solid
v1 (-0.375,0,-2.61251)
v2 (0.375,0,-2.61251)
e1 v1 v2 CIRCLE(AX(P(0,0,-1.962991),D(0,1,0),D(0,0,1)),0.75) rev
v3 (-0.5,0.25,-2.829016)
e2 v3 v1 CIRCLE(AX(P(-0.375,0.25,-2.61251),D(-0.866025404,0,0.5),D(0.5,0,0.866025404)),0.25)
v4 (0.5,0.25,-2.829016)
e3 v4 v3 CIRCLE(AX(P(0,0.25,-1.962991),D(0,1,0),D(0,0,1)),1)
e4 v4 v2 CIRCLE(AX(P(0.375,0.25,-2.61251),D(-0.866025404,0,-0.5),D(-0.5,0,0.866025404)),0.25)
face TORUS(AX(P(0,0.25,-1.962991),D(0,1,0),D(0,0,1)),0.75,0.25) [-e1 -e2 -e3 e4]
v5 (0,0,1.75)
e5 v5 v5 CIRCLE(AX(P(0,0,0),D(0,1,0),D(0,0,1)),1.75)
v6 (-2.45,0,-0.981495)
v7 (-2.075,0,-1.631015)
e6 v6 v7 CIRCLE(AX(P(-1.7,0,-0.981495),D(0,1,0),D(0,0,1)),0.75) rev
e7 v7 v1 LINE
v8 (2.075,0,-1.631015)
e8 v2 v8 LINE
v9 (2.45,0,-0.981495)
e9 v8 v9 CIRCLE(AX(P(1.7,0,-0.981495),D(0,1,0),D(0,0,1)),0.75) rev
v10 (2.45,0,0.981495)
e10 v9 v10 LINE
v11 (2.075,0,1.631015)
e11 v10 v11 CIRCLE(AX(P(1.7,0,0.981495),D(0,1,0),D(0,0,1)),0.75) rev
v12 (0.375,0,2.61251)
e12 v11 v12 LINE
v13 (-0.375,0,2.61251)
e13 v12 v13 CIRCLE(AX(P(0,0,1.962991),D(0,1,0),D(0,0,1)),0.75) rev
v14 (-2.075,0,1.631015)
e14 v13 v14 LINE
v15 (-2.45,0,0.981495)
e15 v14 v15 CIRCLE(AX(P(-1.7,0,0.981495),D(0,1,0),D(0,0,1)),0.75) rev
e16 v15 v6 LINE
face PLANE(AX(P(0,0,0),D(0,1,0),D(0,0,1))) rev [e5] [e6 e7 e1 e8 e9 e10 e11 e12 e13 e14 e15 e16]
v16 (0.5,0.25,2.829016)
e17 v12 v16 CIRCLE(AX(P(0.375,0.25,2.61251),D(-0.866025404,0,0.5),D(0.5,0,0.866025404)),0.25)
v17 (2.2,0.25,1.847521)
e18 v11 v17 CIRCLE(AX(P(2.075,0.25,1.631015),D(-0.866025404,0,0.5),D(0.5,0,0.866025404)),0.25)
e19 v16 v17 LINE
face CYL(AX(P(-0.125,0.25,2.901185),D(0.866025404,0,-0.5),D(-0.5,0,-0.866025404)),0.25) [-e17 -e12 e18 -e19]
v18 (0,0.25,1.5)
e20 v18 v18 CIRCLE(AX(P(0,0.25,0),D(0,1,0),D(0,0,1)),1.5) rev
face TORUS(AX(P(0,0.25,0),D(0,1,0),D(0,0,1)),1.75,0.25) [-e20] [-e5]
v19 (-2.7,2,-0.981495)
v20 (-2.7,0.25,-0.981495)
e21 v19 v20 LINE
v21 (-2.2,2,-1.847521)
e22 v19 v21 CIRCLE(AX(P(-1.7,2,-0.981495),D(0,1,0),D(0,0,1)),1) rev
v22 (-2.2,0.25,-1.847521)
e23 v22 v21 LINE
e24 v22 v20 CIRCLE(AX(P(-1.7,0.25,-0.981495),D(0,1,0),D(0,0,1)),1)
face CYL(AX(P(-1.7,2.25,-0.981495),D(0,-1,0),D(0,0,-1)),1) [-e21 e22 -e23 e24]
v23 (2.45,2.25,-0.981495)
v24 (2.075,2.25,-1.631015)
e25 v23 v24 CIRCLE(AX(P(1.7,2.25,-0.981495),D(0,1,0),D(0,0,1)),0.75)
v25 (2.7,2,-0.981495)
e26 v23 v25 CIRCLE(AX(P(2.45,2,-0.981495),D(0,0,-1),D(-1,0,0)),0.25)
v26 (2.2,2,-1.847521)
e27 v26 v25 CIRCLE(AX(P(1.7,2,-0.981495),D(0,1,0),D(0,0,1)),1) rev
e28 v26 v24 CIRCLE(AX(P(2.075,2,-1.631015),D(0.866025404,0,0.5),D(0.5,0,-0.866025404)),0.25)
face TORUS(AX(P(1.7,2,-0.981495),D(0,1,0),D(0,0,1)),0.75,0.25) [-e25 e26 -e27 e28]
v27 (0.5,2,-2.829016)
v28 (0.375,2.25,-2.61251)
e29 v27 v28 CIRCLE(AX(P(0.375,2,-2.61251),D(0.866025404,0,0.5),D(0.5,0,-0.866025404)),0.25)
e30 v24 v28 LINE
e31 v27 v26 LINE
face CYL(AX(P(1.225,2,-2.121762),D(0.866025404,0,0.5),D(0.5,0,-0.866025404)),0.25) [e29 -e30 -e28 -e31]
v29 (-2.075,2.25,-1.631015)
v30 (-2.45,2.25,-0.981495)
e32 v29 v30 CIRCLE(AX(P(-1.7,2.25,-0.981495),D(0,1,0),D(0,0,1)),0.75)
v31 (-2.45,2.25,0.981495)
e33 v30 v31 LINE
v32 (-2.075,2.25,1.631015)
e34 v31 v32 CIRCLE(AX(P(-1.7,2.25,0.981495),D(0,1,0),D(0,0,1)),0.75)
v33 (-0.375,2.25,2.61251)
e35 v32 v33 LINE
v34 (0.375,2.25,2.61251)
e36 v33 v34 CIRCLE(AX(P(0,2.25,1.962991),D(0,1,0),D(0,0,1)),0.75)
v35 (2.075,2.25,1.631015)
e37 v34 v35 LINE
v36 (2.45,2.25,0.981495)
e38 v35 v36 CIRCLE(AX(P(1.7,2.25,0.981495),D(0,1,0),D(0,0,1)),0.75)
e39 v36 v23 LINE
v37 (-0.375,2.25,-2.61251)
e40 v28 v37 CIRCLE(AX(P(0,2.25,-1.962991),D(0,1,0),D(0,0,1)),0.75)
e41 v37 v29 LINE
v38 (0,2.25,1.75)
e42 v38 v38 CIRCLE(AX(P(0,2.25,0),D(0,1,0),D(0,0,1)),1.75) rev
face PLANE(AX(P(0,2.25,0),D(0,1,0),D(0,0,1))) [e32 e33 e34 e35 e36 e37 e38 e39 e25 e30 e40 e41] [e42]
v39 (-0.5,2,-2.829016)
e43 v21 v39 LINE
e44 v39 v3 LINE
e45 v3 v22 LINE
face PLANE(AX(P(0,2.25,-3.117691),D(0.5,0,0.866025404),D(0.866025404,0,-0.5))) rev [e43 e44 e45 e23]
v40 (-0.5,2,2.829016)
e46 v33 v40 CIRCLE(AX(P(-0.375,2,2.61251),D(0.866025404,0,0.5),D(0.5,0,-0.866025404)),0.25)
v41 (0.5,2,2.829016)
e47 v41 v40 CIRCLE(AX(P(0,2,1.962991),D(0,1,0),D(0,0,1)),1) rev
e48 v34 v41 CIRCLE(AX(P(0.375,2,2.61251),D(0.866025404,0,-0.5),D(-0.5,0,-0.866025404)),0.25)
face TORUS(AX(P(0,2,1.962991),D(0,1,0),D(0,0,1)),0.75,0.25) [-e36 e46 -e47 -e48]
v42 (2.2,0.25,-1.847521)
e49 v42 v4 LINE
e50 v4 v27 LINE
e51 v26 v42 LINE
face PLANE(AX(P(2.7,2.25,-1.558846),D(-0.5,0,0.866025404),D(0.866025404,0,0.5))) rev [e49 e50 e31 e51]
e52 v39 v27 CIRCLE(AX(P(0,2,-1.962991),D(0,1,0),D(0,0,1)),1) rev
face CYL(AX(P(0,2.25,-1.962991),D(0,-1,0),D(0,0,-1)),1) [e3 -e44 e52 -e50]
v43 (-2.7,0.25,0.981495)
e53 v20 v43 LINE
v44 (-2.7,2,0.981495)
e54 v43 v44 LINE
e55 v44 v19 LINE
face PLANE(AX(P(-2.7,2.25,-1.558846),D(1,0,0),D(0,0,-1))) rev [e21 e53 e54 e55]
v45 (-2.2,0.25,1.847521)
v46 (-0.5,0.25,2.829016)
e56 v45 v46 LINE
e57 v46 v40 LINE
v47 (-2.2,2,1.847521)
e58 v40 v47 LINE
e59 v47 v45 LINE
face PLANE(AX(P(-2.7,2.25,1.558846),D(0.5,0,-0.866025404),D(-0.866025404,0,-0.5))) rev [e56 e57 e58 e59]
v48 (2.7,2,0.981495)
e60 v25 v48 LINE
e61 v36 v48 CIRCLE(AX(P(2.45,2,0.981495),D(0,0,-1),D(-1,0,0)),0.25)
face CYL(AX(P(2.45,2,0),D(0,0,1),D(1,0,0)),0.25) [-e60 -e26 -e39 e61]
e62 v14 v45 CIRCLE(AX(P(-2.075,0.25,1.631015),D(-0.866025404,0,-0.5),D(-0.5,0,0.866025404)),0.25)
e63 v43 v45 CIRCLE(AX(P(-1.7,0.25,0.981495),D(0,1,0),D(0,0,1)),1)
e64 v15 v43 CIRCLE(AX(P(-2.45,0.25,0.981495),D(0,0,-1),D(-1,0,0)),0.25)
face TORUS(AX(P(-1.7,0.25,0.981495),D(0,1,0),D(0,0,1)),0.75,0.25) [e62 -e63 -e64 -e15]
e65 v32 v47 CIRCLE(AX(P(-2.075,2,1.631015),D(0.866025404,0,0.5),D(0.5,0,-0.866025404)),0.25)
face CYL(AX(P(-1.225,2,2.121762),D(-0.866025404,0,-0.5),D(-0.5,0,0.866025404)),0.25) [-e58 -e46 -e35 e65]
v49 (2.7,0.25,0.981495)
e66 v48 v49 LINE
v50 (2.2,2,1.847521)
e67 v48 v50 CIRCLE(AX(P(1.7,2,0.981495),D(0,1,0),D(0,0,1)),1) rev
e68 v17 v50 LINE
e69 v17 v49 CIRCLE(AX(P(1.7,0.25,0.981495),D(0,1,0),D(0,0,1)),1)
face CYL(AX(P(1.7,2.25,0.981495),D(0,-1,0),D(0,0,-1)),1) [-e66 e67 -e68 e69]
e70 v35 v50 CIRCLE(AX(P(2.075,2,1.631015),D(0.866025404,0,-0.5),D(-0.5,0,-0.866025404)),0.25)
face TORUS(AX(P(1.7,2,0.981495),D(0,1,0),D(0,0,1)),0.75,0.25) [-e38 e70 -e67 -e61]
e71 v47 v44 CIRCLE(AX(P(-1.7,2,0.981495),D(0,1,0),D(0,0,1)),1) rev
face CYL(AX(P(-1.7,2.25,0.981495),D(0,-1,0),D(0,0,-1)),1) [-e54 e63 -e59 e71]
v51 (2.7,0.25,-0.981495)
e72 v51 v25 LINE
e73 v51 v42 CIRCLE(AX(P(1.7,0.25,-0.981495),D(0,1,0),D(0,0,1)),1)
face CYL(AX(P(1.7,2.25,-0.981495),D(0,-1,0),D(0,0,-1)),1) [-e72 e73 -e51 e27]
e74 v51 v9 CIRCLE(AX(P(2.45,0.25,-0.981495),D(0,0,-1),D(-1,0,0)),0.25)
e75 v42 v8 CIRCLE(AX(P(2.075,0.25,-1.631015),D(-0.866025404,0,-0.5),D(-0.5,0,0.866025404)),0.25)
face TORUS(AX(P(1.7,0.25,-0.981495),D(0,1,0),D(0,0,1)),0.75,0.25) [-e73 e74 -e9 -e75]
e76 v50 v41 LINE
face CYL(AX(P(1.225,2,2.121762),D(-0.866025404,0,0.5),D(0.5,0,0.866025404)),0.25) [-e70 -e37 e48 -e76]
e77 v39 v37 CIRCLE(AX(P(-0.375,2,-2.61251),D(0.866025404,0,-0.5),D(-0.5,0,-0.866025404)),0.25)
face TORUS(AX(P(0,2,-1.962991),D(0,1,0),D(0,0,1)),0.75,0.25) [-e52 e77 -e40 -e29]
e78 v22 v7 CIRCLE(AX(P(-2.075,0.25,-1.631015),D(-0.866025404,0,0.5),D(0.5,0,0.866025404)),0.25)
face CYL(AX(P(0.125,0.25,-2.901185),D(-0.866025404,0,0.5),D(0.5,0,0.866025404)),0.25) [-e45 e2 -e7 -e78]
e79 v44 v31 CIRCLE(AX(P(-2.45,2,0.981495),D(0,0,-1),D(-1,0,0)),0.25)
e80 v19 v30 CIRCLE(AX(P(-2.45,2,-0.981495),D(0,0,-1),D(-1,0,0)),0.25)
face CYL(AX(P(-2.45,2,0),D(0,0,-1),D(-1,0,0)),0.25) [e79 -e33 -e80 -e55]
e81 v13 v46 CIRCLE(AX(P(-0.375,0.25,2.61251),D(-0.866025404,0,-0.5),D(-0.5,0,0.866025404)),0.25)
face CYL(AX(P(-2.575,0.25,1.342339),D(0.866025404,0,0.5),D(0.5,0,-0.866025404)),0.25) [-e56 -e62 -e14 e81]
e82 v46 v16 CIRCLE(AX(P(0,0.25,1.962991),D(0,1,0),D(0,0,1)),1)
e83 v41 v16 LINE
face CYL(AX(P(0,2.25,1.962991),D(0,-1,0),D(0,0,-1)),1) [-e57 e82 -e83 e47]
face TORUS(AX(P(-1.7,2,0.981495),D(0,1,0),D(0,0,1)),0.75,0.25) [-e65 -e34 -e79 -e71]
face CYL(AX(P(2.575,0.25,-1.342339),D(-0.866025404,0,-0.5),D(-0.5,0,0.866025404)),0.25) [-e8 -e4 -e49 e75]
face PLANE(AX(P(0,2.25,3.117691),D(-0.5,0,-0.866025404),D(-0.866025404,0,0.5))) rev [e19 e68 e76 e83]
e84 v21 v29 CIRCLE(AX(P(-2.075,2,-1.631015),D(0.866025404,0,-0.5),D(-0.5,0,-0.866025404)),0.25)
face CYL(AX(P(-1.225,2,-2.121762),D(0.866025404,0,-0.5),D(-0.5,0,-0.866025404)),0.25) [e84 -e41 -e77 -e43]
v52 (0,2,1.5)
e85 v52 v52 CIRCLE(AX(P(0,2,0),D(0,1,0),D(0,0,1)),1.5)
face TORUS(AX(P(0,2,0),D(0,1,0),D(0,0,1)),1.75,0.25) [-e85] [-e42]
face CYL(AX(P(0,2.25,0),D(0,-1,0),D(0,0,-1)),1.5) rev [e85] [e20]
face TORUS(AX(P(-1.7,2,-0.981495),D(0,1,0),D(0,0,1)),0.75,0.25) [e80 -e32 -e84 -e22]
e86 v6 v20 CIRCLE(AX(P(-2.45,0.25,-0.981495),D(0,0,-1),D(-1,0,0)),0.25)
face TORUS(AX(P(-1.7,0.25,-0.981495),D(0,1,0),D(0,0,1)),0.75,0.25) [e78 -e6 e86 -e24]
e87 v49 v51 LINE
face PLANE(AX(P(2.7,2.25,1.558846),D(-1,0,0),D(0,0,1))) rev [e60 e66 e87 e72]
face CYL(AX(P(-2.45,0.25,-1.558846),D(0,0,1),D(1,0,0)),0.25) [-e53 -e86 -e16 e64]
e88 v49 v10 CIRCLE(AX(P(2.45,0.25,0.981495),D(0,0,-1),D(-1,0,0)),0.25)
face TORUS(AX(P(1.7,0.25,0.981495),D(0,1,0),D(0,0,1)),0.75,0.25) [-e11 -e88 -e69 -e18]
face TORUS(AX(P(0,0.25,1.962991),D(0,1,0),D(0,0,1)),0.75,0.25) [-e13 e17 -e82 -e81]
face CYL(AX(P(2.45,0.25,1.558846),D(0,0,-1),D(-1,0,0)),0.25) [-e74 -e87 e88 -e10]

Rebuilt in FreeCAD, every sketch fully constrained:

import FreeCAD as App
import Part
import Sketcher
from FreeCAD import Vector
Q = App.Units.Quantity


def edges_at(feature, points):
    """Names of the edges that pass closest to the given points."""
    edges = feature.Shape.Edges
    near = lambda p: min(range(len(edges)), key=lambda i: edges[i].distToShape(Part.Vertex(*p))[0])
    return sorted({f"Edge{near(p) + 1}" for p in points})

doc = App.newDocument("Part")
body = doc.addObject("PartDesign::Body", "Body")

# Sketch on XZ plane
sketch1 = body.newObject("Sketcher::SketchObject", "Sketch")
sketch1.AttachmentSupport = (doc.getObject("XZ_Plane"), [""])
sketch1.MapMode = "FlatFace"
sketch1.addGeometry([
    Part.LineSegment(Vector(2.7, 1.6, 0), Vector(2.7, -1.6, 0)),  # 0
    Part.LineSegment(Vector(2.7, -1.6, 0), Vector(0, -3.1, 0)),  # 1
    Part.LineSegment(Vector(0, -3.1, 0), Vector(-2.7, -1.6, 0)),  # 2
    Part.LineSegment(Vector(-2.7, -1.6, 0), Vector(-2.7, 1.6, 0)),  # 3
    Part.LineSegment(Vector(-2.7, 1.6, 0), Vector(0, 3.1, 0)),  # 4
    Part.LineSegment(Vector(0, 3.1, 0), Vector(2.7, 1.6, 0)),  # 5
    Part.Circle(Vector(0, 0, 0), Vector(0, 0, 1), 1.5),  # 6
], False)
sketch1.addConstraint([
    Sketcher.Constraint("Coincident", 0, 2, 1, 1),
    Sketcher.Constraint("Coincident", 1, 2, 2, 1),
    Sketcher.Constraint("Coincident", 2, 2, 3, 1),
    Sketcher.Constraint("Coincident", 3, 2, 4, 1),
    Sketcher.Constraint("Coincident", 4, 2, 5, 1),
    Sketcher.Constraint("Coincident", 5, 2, 0, 1),
    Sketcher.Constraint("Vertical", 0),
    Sketcher.Constraint("Vertical", 3),
    Sketcher.Constraint("Coincident", 6, 3, -1, 1),
    Sketcher.Constraint("Symmetric", 0, 2, 3, 2, -1, 1),
    Sketcher.Constraint("Symmetric", 1, 2, 4, 2, -1, 1),
    Sketcher.Constraint("PointOnObject", 1, 2, -2),
    Sketcher.Constraint("Parallel", 2, 5),
    Sketcher.Constraint("Horizontal", 0, 2, 2, 2),
    Sketcher.Constraint("Diameter", 6, Q("3 mm")),
    Sketcher.Constraint("Angle", 1, Q("-150 deg")),
    Sketcher.Constraint("DistanceX", -1, 1, 0, 2, Q("2.7 mm")),
    Sketcher.Constraint("DistanceY", 0, 2, 0, 1, Q("3.117691 mm")),
])
pad1 = body.newObject("PartDesign::Pad", "Pad")
pad1.Profile = sketch1
pad1.Length = 2.25
pad1.Reversed = True
doc.recompute()

fillet = body.newObject("PartDesign::Fillet", "Fillet")
fillet.Base = (pad1, edges_at(pad1, [
    (0, 1.125, 3.118),
    (-2.7, 1.125, 1.559),
    (-2.7, 1.125, -1.559),
    (0, 1.125, -3.118),
    (2.7, 1.125, -1.559),
    (2.7, 1.125, 1.559),
]))
fillet.Radius = 1
doc.recompute()

fillet2 = body.newObject("PartDesign::Fillet", "Fillet001")
fillet2.Base = (fillet, edges_at(fillet, [
    (-1.5, 0, 0),
    (-1.5, 2.25, 0),
    (-1.35, 0, -2.338),
    (-1.35, 2.25, -2.338),
    (1.35, 0, 2.338),
    (-1.35, 0, 2.338),
    (-2.7, 0, 0),
    (1.35, 0, -2.338),
    (2.7, 0, 0),
    (0, 0, 2.963),
    (2.566, 0, 1.481),
    (2.566, 0, -1.481),
    (-2.566, 0, 1.481),
    (-2.566, 0, -1.481),
    (0, 0, -2.963),
    (1.35, 2.25, -2.338),
    (1.35, 2.25, 2.338),
    (2.7, 2.25, 0),
    (-2.7, 2.25, 0),
    (-1.35, 2.25, 2.338),
    (0, 2.25, 2.963),
    (2.566, 2.25, 1.481),
    (2.566, 2.25, -1.481),
    (-2.566, 2.25, 1.481),
    (-2.566, 2.25, -1.481),
    (0, 2.25, -2.963),
]))
fillet2.Radius = 0.25

doc.recompute()
